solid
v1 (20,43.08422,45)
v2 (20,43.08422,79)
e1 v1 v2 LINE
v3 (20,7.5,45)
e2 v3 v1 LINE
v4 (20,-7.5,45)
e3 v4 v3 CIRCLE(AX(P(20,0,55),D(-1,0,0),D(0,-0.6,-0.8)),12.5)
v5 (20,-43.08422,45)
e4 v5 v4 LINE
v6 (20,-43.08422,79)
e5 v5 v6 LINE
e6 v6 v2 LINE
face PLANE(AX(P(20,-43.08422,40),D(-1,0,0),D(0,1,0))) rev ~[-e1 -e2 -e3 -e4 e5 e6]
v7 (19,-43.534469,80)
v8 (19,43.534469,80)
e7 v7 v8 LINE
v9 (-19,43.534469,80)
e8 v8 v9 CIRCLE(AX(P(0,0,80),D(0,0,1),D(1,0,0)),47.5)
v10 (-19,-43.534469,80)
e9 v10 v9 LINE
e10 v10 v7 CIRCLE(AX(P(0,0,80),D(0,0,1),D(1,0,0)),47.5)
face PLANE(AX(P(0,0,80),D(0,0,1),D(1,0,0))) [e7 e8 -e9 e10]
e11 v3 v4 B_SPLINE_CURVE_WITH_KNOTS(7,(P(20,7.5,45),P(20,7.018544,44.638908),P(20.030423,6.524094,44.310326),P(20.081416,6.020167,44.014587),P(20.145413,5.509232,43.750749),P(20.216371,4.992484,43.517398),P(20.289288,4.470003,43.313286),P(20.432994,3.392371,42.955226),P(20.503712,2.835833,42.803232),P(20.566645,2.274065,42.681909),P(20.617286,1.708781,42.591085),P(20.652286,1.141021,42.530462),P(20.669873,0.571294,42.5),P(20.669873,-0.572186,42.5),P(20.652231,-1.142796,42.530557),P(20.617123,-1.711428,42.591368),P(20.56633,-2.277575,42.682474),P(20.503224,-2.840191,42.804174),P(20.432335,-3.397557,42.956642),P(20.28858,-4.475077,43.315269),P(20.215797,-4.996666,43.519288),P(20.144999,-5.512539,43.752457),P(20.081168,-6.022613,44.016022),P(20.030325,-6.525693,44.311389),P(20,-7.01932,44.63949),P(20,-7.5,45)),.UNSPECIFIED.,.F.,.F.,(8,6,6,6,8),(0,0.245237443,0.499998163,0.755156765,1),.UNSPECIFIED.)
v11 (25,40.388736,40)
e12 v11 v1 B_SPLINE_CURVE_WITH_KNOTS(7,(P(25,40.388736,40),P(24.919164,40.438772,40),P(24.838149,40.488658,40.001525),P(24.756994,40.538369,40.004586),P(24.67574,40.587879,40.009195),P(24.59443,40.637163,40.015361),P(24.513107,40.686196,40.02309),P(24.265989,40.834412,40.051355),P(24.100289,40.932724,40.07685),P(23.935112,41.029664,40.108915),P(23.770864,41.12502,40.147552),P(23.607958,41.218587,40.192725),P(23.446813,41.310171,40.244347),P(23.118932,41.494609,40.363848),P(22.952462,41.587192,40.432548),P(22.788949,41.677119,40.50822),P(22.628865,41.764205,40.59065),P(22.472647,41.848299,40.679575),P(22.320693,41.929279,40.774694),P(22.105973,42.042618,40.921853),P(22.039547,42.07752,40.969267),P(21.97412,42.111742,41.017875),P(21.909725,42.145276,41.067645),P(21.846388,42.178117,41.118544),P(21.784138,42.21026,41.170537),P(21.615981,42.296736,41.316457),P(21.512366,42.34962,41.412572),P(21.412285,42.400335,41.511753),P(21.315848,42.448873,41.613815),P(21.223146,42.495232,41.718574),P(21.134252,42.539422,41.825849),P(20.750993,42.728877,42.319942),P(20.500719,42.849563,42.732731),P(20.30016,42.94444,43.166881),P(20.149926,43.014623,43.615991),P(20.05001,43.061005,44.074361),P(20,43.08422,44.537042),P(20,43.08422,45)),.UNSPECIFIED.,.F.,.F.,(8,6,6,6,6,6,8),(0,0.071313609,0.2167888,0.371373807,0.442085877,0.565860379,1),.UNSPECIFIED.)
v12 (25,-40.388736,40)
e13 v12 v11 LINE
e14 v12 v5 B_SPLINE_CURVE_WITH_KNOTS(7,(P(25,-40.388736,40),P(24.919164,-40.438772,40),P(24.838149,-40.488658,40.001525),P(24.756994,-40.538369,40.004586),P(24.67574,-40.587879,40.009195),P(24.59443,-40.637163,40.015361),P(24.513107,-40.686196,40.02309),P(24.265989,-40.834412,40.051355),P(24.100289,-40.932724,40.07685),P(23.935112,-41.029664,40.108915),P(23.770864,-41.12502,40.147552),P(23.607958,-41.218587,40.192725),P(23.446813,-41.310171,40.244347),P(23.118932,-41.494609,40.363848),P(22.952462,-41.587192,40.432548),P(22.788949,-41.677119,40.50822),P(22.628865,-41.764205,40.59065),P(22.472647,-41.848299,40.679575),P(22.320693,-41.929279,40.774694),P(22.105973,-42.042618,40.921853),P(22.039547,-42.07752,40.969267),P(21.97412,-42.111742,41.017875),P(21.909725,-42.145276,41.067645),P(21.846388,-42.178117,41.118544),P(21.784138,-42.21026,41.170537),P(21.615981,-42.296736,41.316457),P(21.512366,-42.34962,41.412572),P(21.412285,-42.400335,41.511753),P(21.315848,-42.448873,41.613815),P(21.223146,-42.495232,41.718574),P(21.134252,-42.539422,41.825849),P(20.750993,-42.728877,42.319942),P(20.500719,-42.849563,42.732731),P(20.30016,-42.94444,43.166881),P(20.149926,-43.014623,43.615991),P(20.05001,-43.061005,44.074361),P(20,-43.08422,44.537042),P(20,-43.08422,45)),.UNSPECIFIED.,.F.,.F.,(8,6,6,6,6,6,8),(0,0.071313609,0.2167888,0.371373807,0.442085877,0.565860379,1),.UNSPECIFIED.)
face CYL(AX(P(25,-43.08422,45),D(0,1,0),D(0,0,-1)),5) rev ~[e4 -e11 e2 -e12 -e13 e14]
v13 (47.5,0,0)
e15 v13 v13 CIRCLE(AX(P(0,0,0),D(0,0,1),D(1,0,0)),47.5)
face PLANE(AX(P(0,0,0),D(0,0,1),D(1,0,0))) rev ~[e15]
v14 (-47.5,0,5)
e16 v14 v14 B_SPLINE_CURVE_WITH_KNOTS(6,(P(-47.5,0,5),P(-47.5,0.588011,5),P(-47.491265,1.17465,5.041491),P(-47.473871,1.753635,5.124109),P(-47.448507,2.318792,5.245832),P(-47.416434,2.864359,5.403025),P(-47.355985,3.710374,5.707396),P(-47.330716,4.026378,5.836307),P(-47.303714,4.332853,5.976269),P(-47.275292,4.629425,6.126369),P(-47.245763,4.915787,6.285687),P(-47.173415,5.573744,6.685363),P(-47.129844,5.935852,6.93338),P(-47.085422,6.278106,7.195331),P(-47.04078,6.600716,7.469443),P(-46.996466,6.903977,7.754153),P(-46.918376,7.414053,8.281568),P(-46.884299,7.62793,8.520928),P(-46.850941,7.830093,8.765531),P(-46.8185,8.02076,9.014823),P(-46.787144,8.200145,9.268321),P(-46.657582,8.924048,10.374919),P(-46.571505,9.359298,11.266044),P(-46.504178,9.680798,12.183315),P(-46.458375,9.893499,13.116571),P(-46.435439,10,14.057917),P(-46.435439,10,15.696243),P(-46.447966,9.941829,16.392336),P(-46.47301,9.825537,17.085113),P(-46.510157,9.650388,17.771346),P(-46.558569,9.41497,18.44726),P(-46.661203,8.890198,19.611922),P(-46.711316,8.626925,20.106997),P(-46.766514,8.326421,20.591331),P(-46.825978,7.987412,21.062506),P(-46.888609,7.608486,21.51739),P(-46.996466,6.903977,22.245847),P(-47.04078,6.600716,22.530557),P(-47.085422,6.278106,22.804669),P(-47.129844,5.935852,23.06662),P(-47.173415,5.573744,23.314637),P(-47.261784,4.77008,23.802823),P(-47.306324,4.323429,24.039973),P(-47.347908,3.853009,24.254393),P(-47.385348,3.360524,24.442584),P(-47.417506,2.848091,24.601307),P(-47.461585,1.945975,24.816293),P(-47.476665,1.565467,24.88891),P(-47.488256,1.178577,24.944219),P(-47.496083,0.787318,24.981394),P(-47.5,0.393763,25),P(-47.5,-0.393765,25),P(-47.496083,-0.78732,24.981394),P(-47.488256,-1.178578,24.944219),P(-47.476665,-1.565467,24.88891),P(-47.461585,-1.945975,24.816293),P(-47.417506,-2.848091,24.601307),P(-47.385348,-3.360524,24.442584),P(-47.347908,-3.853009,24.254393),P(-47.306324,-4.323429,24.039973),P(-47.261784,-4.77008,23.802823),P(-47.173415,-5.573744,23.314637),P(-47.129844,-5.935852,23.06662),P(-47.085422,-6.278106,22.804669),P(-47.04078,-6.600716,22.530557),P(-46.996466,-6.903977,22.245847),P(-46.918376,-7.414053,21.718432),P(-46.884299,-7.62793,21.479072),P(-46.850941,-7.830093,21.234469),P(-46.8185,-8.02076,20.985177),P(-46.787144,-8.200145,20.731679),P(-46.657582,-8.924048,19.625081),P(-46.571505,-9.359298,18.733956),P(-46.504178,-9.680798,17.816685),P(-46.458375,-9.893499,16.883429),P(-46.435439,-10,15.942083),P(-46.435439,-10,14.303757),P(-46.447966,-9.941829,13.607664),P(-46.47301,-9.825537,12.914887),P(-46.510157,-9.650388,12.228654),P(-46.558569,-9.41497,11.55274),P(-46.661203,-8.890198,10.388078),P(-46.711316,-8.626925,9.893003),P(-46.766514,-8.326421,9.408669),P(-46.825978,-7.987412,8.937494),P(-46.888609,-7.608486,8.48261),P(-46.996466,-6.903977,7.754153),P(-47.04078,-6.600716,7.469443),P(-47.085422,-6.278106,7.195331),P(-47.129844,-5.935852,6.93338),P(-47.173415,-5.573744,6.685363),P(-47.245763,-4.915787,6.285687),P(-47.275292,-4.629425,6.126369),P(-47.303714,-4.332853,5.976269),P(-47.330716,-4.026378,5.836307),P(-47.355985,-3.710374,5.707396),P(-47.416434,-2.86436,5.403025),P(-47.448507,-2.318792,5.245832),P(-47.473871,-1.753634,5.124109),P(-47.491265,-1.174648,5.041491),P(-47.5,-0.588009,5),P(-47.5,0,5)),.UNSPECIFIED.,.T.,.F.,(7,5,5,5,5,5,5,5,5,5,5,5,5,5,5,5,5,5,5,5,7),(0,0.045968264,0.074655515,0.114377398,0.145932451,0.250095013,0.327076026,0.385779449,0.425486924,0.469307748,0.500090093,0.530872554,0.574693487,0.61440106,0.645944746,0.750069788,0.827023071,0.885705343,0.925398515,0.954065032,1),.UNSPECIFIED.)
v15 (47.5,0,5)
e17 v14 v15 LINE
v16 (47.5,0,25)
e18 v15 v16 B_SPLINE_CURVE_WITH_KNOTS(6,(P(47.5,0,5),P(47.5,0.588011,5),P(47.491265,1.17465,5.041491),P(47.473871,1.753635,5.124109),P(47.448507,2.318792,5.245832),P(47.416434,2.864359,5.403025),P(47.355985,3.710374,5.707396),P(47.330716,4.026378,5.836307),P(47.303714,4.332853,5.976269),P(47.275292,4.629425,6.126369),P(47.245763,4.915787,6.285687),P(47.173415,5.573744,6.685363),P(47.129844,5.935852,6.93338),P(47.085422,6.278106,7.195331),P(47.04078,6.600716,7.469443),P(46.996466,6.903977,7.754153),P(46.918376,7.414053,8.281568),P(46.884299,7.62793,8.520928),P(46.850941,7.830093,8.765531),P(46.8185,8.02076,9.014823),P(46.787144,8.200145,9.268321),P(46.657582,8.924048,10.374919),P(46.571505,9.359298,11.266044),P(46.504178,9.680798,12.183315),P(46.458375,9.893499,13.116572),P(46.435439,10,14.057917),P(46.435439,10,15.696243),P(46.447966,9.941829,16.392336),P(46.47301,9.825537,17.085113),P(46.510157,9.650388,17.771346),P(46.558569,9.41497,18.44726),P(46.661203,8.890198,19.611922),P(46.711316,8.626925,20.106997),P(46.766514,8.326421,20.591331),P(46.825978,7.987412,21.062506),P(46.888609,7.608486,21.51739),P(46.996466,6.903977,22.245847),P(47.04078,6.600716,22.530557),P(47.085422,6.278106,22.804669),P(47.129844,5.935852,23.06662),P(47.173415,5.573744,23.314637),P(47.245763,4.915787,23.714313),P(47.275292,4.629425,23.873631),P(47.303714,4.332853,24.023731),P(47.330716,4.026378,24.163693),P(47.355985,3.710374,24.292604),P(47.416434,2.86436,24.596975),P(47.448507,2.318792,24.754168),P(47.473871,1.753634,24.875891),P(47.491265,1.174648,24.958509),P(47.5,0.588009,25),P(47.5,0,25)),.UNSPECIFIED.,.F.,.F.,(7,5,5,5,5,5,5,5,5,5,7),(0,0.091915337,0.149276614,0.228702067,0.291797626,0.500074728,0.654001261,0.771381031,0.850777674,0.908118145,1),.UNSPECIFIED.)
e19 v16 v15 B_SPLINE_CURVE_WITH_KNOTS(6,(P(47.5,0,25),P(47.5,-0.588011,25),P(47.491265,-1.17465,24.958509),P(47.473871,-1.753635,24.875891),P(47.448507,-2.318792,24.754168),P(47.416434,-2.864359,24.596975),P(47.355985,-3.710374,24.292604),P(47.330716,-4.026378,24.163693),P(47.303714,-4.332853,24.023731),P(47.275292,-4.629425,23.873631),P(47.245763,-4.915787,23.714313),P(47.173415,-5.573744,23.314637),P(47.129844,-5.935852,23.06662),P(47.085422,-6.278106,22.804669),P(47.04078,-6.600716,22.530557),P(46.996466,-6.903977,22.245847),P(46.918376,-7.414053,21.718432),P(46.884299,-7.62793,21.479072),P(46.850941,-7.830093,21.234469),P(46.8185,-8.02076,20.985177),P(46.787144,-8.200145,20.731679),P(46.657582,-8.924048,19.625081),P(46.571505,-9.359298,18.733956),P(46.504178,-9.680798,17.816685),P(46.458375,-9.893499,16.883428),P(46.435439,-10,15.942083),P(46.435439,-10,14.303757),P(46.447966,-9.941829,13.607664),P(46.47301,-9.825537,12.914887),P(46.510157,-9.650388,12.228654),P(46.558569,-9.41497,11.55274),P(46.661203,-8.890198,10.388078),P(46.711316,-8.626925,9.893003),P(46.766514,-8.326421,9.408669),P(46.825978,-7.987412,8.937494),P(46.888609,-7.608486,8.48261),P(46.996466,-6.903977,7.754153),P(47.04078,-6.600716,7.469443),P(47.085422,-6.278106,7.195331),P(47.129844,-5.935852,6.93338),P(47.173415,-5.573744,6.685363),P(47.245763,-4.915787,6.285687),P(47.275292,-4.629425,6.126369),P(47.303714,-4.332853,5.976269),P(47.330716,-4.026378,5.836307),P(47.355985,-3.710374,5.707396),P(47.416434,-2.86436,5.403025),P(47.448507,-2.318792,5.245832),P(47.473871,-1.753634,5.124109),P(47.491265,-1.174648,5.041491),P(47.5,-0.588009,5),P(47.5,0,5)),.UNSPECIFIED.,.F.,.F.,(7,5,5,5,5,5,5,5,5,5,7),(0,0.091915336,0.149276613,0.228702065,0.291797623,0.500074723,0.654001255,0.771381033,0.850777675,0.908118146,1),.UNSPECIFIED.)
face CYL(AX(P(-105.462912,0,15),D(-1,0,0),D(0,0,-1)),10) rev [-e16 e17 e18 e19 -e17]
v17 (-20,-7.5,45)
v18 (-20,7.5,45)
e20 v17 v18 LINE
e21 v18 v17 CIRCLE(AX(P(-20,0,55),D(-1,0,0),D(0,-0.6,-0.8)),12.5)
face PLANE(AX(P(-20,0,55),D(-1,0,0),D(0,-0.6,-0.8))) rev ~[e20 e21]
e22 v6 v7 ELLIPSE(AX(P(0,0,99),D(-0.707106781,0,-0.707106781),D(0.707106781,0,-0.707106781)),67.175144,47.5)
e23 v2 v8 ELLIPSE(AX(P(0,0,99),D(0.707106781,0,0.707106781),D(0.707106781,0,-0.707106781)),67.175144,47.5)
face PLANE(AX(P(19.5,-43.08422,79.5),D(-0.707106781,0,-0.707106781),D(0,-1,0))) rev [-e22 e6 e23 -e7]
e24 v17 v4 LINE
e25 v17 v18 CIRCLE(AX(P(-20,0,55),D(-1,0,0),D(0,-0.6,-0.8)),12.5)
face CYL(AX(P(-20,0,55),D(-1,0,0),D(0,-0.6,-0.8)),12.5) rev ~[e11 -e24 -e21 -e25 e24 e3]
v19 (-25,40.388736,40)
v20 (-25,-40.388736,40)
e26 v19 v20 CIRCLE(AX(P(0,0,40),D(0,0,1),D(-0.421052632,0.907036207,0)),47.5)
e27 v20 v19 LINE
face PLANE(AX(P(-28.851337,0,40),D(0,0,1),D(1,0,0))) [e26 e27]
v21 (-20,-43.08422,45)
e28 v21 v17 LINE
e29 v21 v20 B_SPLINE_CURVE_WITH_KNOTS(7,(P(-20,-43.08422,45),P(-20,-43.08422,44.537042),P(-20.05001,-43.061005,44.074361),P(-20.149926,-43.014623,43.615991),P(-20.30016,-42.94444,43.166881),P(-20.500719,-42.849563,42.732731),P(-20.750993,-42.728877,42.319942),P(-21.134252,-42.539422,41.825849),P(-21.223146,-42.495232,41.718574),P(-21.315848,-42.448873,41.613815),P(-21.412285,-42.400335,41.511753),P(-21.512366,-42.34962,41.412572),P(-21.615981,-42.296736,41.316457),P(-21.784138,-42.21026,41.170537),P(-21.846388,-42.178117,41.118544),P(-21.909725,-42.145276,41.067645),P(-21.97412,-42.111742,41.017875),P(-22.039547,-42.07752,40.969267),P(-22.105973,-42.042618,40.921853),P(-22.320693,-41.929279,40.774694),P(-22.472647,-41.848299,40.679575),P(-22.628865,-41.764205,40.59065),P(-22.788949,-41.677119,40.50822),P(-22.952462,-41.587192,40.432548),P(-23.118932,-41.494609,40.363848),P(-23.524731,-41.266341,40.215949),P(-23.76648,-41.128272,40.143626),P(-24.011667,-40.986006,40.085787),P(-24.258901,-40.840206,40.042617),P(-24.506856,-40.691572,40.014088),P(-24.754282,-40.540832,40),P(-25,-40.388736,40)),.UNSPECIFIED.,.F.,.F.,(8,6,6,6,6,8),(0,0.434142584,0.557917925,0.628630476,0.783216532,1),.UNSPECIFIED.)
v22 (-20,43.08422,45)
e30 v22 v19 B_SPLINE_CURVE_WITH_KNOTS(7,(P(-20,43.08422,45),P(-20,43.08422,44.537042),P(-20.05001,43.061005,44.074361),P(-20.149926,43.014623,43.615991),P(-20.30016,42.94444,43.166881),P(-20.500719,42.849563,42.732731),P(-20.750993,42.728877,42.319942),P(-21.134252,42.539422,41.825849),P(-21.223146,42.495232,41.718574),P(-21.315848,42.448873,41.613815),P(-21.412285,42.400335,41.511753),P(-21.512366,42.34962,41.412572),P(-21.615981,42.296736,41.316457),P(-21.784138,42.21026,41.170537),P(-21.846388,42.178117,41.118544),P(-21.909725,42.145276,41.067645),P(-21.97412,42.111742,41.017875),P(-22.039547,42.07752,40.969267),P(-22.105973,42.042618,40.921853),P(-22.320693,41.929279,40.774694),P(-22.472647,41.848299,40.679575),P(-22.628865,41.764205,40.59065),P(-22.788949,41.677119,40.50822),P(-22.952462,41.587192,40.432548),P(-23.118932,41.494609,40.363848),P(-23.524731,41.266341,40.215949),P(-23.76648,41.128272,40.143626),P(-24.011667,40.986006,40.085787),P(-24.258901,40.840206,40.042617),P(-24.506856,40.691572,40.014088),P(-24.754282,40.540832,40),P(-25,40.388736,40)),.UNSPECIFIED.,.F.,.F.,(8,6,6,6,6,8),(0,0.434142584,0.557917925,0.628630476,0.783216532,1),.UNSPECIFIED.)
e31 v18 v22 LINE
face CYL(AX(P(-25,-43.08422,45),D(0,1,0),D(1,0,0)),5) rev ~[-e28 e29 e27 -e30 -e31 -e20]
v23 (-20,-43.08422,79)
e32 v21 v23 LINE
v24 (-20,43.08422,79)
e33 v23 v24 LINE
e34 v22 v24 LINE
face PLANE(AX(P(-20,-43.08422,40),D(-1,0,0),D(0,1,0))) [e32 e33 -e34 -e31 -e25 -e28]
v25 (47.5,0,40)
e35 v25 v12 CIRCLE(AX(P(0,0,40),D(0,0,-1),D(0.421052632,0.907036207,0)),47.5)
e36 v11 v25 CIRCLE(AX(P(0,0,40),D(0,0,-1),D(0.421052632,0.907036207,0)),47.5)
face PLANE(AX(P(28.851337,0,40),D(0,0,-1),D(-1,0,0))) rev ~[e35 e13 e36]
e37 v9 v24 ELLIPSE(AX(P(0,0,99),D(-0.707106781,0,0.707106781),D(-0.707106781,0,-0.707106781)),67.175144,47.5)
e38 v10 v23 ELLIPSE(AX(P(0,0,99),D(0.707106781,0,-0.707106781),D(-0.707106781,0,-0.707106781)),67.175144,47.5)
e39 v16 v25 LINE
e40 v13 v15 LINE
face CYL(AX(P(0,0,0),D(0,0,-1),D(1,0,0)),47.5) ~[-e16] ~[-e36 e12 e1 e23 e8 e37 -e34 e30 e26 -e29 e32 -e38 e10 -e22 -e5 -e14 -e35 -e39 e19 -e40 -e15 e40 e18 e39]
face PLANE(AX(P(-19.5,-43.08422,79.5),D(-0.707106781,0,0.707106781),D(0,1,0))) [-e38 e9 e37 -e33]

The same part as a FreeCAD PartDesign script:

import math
import FreeCAD as App
import Part
import Sketcher

V = App.Vector


def edges_at(feature, points):
    """Names of the edges that pass closest to the given points."""
    edges = feature.Shape.Edges
    near = lambda p: min(range(len(edges)), key=lambda i: edges[i].distToShape(Part.Vertex(*p))[0])
    return sorted({f"Edge{near(p) + 1}" for p in points})

doc = App.newDocument("Part")
body = doc.addObject("PartDesign::Body", "Body")

# Sketch on XY plane
sketch1 = doc.addObject("Sketcher::SketchObject", "Sketch")
body.addObject(sketch1)
sketch1.AttachmentSupport = (doc.XY_Plane, [""])
sketch1.MapMode = "FlatFace"
sketch1.addGeometry(Part.Circle(V(0, 0, 0), V(0, 0, 1), 48), False)
sketch1.addConstraint([
    Sketcher.Constraint("Coincident", 0, 3, -1, 1),
    Sketcher.Constraint("Diameter", 0, 95.0),
])
pad1 = doc.addObject("PartDesign::Pad", "Pad")
body.addObject(pad1)
pad1.Profile = sketch1
pad1.Length = 80

# Sketch on XY plane
sketch2 = doc.addObject("Sketcher::SketchObject", "Sketch001")
body.addObject(sketch2)
sketch2.AttachmentSupport = (doc.XY_Plane, [""])
sketch2.MapMode = "FlatFace"
sketch2.AttachmentOffset = App.Placement(V(0, 0, 40), App.Rotation())
sketch2.addGeometry([
    Part.LineSegment(V(20, 43, 0), V(20, -43, 0)),
    Part.ArcOfCircle(Part.Circle(V(0, 0, 0), V(0, 0, 1), 48), math.radians(-65), math.radians(65)),
    Part.LineSegment(V(-20, -43, 0), V(-20, 43, 0)),
    Part.ArcOfCircle(Part.Circle(V(0, 0, 0), V(0, 0, 1), 48), math.radians(115), math.radians(245)),
], False)
sketch2.addConstraint([
    Sketcher.Constraint("Coincident", 0, 1, 1, 2),
    Sketcher.Constraint("Coincident", 1, 1, 0, 2),
    Sketcher.Constraint("Coincident", 2, 1, 3, 2),
    Sketcher.Constraint("Coincident", 3, 1, 2, 2),
    Sketcher.Constraint("Vertical", 0),
    Sketcher.Constraint("Vertical", 2),
    Sketcher.Constraint("Coincident", 1, 3, -1, 1),
    Sketcher.Constraint("Coincident", 3, 3, -1, 1),
    Sketcher.Constraint("Equal", 1, 3),
    Sketcher.Constraint("Horizontal", 1, 1, 2, 1),
    Sketcher.Constraint("Radius", 1, 47.5),
    Sketcher.Constraint("DistanceX", -1, 1, 0, 1, 20.0),
])
pocket1 = doc.addObject("PartDesign::Pocket", "Pocket")
body.addObject(pocket1)
pocket1.Profile = sketch2
pocket1.Length = 40
pocket1.Reversed = True
doc.recompute()

fillet = doc.addObject("PartDesign::Fillet", "Fillet")
body.addObject(fillet)
fillet.Base = (pocket1, edges_at(pocket1, [(-20, 0, 40), (20, 0, 40)]))
fillet.Radius = 5

# Sketch on YZ plane
sketch3 = doc.addObject("Sketcher::SketchObject", "Sketch002")
body.addObject(sketch3)
sketch3.AttachmentSupport = (doc.YZ_Plane, [""])
sketch3.MapMode = "FlatFace"
sketch3.AttachmentOffset = App.Placement(V(0, 0, -20), App.Rotation())
sketch3.addGeometry(Part.Circle(V(0, 55, 0), V(0, 0, 1), 12), False)
sketch3.addConstraint([
    Sketcher.Constraint("PointOnObject", 0, 3, -2),
    Sketcher.Constraint("Diameter", 0, 25.0),
    Sketcher.Constraint("DistanceY", -1, 1, 0, 3, 55.0),
])
pocket2 = doc.addObject("PartDesign::Pocket", "Pocket001")
body.addObject(pocket2)
pocket2.Profile = sketch3
pocket2.Type = "ThroughAll"
pocket2.Reversed = True
doc.recompute()

chamfer = doc.addObject("PartDesign::Chamfer", "Chamfer")
body.addObject(chamfer)
chamfer.Base = (pocket2, edges_at(pocket2, [(-20, 0, 80), (20, 0, 80)]))
chamfer.Size = 1

# Sketch on YZ plane
sketch4 = doc.addObject("Sketcher::SketchObject", "Sketch003")
body.addObject(sketch4)
sketch4.AttachmentSupport = (doc.YZ_Plane, [""])
sketch4.MapMode = "FlatFace"
sketch4.addGeometry(Part.Circle(V(0, 15, 0), V(0, 0, 1), 10), False)
sketch4.addConstraint([
    Sketcher.Constraint("PointOnObject", 0, 3, -2),
    Sketcher.Constraint("Diameter", 0, 20.0),
    Sketcher.Constraint("DistanceY", -1, 1, 0, 3, 15.0),
])
pocket3 = doc.addObject("PartDesign::Pocket", "Pocket002")
body.addObject(pocket3)
pocket3.Profile = sketch4
pocket3.Type = "ThroughAll"
pocket3.Midplane = True

doc.recompute()
